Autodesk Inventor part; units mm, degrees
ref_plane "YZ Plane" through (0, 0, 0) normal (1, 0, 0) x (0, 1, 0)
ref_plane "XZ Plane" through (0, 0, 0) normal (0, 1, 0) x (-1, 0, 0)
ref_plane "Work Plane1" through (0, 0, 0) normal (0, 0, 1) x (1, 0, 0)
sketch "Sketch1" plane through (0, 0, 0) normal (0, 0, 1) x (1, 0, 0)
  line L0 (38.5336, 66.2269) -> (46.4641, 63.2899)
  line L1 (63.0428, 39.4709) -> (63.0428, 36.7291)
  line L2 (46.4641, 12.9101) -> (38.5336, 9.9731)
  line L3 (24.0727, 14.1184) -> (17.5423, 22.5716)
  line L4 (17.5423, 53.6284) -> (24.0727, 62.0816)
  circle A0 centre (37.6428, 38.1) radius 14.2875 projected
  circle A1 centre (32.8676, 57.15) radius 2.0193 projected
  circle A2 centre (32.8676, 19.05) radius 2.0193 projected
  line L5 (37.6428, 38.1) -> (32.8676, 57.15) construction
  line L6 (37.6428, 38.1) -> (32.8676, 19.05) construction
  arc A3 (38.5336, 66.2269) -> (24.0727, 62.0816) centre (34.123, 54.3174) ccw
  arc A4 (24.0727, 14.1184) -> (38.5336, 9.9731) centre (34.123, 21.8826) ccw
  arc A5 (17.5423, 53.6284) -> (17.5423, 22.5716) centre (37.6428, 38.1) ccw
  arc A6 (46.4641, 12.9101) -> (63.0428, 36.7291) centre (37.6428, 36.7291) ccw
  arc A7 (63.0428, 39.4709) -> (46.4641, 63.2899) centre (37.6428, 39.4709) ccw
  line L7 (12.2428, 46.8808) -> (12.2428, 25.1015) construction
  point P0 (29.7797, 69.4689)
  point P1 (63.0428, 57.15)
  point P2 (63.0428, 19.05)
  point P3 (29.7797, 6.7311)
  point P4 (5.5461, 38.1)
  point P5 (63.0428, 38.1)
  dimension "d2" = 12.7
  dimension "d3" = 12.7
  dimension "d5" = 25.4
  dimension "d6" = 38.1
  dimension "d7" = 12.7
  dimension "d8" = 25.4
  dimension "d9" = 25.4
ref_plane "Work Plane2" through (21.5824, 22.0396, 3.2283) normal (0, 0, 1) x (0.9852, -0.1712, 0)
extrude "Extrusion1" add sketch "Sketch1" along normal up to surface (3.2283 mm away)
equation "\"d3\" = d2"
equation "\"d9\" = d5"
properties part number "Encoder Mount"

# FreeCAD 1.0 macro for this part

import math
import FreeCAD as App
import Part
import Sketcher
Q = App.Units.Quantity

doc = App.newDocument("Part")
body = doc.addObject("PartDesign::Body", "Body")

# Sketch on XY plane
sketch1 = body.newObject("Sketcher::SketchObject", "Sketch")
sketch1.AttachmentSupport = (doc.getObject("XY_Plane"), [""])
sketch1.MapMode = "FlatFace"
sketch1.addGeometry(Part.LineSegment(App.Vector(46.5, 63.3, 0), App.Vector(38.5, 66.2, 0)), False)
sketch1.addGeometry(Part.ArcOfCircle(Part.Circle(App.Vector(34.1, 54.3, 0), App.Vector(0, 0, 1), 12.7), math.radians(70), math.radians(142)), False)
sketch1.addGeometry(Part.LineSegment(App.Vector(24.1, 62.1, 0), App.Vector(17.5, 53.6, 0)), False)
sketch1.addGeometry(Part.ArcOfCircle(Part.Circle(App.Vector(37.6, 38.1, 0), App.Vector(0, 0, 1), 25.4), math.radians(142), math.radians(218)), False)
sketch1.addGeometry(Part.LineSegment(App.Vector(17.5, 22.6, 0), App.Vector(24.1, 14.1, 0)), False)
sketch1.addGeometry(Part.ArcOfCircle(Part.Circle(App.Vector(34.1, 21.9, 0), App.Vector(0, 0, 1), 12.7), math.radians(-142), math.radians(-70)), False)
sketch1.addGeometry(Part.LineSegment(App.Vector(38.5, 10, 0), App.Vector(46.5, 12.9, 0)), False)
sketch1.addGeometry(Part.ArcOfCircle(Part.Circle(App.Vector(37.6, 36.7, 0), App.Vector(0, 0, 1), 25.4), math.radians(-70), math.radians(0)), False)
sketch1.addGeometry(Part.LineSegment(App.Vector(63, 36.7, 0), App.Vector(63, 39.5, 0)), False)
sketch1.addGeometry(Part.ArcOfCircle(Part.Circle(App.Vector(37.6, 39.5, 0), App.Vector(0, 0, 1), 25.4), math.radians(0), math.radians(70)), False)
sketch1.addGeometry(Part.Circle(App.Vector(32.9, 19.1, 0), App.Vector(0, 0, 1), 2), False)
sketch1.addGeometry(Part.Circle(App.Vector(32.9, 57.1, 0), App.Vector(0, 0, 1), 2), False)
sketch1.addGeometry(Part.Circle(App.Vector(37.6, 38.1, 0), App.Vector(0, 0, 1), 14.3), False)
sketch1.addConstraint(Sketcher.Constraint("Tangent", 0, 2, 1, 1))
sketch1.addConstraint(Sketcher.Constraint("Tangent", 1, 2, 2, 1))
sketch1.addConstraint(Sketcher.Constraint("Tangent", 2, 2, 3, 1))
sketch1.addConstraint(Sketcher.Constraint("Tangent", 3, 2, 4, 1))
sketch1.addConstraint(Sketcher.Constraint("Tangent", 4, 2, 5, 1))
sketch1.addConstraint(Sketcher.Constraint("Tangent", 5, 2, 6, 1))
sketch1.addConstraint(Sketcher.Constraint("Tangent", 6, 2, 7, 1))
sketch1.addConstraint(Sketcher.Constraint("Tangent", 7, 2, 8, 1))
sketch1.addConstraint(Sketcher.Constraint("Tangent", 8, 2, 9, 1))
sketch1.addConstraint(Sketcher.Constraint("Tangent", 9, 2, 0, 1))
sketch1.addConstraint(Sketcher.Constraint("Vertical", 8))
sketch1.addConstraint(Sketcher.Constraint("Coincident", 12, 3, 3, 3))
sketch1.addConstraint(Sketcher.Constraint("Equal", 1, 5))
sketch1.addConstraint(Sketcher.Constraint("Equal", 3, 7))
sketch1.addConstraint(Sketcher.Constraint("Equal", 7, 9))
sketch1.addConstraint(Sketcher.Constraint("Equal", 10, 11))
sketch1.addConstraint(Sketcher.Constraint("Vertical", 1, 3, 5, 3))
sketch1.addConstraint(Sketcher.Constraint("Vertical", 3, 3, 7, 3))
sketch1.addConstraint(Sketcher.Constraint("Vertical", 10, 3, 11, 3))
sketch1.addConstraint(Sketcher.Constraint("Vertical", 2, 2, 3, 2))
sketch1.addConstraint(Sketcher.Constraint("Vertical", 0, 2, 5, 2))
sketch1.addConstraint(Sketcher.Constraint("Radius", 3, Q("1 in")))
sketch1.addConstraint(Sketcher.Constraint("Radius", 1, Q("0.5 in")))
sketch1.addConstraint(Sketcher.Constraint("DistanceY", -1, 1, 3, 3, Q("1.5 in")))
sketch1.addConstraint(Sketcher.Constraint("Diameter", 10, Q("0.159 in")))
sketch1.addConstraint(Sketcher.Constraint("Diameter", 12, Q("1.125 in")))
sketch1.addConstraint(Sketcher.Constraint("DistanceY", -1, 1, 10, 3, Q("0.75 in")))
sketch1.addConstraint(Sketcher.Constraint("DistanceY", -1, 1, 11, 3, Q("2.25 in")))
sketch1.addConstraint(Sketcher.Constraint("DistanceX", -1, 1, 3, 3, Q("1.482 in")))
sketch1.addConstraint(Sketcher.Constraint("DistanceX", -1, 1, 10, 3, Q("1.294 in")))
sketch1.addConstraint(Sketcher.Constraint("DistanceY", 2, 2, 0, 2, Q("0.496 in")))
sketch1.addConstraint(Sketcher.Constraint("DistanceY", 8, 1, 8, 2, 2.7418))
sketch1.addConstraint(Sketcher.Constraint("DistanceX", -1, 1, 6, 2, Q("1.8293 in")))
pad1 = body.newObject("PartDesign::Pad", "Pad")
pad1.Profile = sketch1
pad1.Length = Q("0.1270984 in")

doc.recompute()
